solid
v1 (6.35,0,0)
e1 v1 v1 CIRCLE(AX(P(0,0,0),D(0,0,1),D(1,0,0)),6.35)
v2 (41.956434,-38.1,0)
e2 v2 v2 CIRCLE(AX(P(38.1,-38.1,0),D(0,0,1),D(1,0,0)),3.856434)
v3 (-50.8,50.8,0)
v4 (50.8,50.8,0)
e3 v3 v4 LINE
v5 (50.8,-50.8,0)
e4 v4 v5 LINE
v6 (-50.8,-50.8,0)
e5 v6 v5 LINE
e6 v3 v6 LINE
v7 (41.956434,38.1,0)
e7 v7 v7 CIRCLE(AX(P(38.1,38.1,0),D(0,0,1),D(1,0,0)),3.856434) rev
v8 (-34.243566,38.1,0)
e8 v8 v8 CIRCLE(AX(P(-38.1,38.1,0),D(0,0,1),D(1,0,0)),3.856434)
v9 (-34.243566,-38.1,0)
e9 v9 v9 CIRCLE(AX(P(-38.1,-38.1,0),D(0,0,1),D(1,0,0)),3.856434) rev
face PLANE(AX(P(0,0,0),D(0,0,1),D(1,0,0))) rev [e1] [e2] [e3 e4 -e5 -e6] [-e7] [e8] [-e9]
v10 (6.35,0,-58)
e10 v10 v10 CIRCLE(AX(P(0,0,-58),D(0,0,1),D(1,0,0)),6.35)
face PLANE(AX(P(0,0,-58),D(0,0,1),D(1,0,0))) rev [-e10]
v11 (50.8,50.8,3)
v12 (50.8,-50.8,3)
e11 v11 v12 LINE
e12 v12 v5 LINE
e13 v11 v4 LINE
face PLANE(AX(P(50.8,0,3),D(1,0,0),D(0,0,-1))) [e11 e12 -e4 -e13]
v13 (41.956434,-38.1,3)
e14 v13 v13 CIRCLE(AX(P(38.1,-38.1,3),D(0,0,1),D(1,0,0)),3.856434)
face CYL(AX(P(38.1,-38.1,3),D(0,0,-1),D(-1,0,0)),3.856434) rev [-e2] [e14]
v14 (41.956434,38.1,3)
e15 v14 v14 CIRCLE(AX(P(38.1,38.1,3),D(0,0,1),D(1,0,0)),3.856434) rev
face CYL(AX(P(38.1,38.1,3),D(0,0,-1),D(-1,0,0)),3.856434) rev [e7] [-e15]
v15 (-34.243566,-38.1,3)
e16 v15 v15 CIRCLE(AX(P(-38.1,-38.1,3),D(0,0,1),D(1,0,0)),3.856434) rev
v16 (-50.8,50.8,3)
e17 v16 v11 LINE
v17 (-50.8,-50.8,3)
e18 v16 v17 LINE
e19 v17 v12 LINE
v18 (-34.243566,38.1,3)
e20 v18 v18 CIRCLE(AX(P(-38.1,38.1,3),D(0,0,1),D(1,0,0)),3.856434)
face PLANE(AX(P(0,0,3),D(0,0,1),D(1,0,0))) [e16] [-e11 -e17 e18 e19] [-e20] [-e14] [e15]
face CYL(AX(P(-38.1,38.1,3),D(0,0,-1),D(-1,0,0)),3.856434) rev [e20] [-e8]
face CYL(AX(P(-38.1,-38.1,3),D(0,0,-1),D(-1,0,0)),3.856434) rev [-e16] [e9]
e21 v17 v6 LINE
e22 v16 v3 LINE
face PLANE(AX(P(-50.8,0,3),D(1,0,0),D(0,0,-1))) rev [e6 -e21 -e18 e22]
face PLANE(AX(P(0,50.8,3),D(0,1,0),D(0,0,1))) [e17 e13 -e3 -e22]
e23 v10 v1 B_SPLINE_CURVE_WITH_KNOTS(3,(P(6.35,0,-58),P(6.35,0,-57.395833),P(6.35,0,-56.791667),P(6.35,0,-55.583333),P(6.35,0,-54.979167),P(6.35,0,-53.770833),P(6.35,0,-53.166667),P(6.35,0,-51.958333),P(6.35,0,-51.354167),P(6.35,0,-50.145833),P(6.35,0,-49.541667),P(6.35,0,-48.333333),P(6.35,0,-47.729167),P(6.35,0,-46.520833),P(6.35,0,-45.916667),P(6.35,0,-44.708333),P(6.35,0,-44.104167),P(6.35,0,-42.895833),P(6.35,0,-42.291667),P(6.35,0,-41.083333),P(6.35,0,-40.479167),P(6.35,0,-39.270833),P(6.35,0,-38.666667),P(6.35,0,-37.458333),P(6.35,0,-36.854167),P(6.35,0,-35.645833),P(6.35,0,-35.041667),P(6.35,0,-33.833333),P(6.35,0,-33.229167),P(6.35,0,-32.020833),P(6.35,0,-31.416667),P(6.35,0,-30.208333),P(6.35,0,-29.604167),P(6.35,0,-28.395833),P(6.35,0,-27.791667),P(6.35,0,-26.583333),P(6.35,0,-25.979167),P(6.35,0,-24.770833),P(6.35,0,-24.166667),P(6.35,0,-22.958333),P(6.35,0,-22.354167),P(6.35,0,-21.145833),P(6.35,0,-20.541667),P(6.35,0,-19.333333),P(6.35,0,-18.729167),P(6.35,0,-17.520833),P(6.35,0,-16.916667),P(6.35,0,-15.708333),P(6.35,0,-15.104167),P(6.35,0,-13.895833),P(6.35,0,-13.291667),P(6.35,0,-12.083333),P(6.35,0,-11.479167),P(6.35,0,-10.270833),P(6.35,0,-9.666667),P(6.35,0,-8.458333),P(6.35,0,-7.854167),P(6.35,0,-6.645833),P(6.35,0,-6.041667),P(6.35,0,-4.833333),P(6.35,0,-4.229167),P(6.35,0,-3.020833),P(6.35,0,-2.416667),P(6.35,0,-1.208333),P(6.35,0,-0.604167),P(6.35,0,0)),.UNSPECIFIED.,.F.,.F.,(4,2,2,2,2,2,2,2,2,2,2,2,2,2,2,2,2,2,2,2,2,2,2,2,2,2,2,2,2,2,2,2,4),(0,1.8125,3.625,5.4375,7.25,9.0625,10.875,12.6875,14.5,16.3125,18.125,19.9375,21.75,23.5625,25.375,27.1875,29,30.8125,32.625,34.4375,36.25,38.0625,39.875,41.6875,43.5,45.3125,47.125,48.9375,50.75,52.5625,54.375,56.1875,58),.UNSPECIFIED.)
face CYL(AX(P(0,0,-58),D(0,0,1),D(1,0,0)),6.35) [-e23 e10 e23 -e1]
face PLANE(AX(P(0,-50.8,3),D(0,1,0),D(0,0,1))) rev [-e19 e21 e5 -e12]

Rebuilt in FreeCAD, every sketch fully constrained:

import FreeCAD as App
import Part
import Sketcher

V = App.Vector
Q = App.Units.Quantity


def add_polygon(sketch, points):
    """Adds a closed chain of lines whose ends are joined by coincident constraints."""
    first, n = sketch.GeometryCount, len(points)
    for a, b in zip(points, points[1:] + points[:1]):
        sketch.addGeometry(Part.LineSegment(App.Vector(*a, 0), App.Vector(*b, 0)), False)
    for i in range(n):
        sketch.addConstraint(Sketcher.Constraint("Coincident", first + i, 2, first + (i + 1) % n, 1))

doc = App.newDocument("Part")
body = doc.addObject("PartDesign::Body", "Body")

sketch1 = doc.addObject("Sketcher::SketchObject", "Sketch")
body.addObject(sketch1)
sketch1.AttachmentSupport = (doc.XY_Plane, [""])
sketch1.MapMode = "FlatFace"
add_polygon(sketch1, [(-50.8, 50.8), (-50.8, -50.8), (50.8, -50.8), (50.8, 50.8)])
sketch1.addGeometry(Part.Circle(V(-38.1, -38.1, 0), V(0, 0, 1), 3.9), False)
sketch1.addGeometry(Part.Circle(V(38.1, -38.1, 0), V(0, 0, 1), 3.9), False)
sketch1.addGeometry(Part.Circle(V(-38.1, 38.1, 0), V(0, 0, 1), 3.9), False)
sketch1.addGeometry(Part.Circle(V(38.1, 38.1, 0), V(0, 0, 1), 3.9), False)
sketch1.addConstraint([
    Sketcher.Constraint("Vertical", 0),
    Sketcher.Constraint("Horizontal", 1),
    Sketcher.Constraint("Vertical", 2),
    Sketcher.Constraint("Horizontal", 3),
    Sketcher.Constraint("Equal", 4, 5),
    Sketcher.Constraint("Equal", 5, 6),
    Sketcher.Constraint("Equal", 6, 7),
    Sketcher.Constraint("Symmetric", 5, 3, 6, 3, -1, 1),
    Sketcher.Constraint("Symmetric", 4, 3, 7, 3, -1, 1),
    Sketcher.Constraint("Symmetric", 0, 2, 2, 2, -1, 1),
    Sketcher.Constraint("Symmetric", 4, 3, 5, 3, -2),
    Sketcher.Constraint("Equal", 3, 0),
    Sketcher.Constraint("DistanceX", 1, 1, 1, 2, Q("101.6 mm")),
    Sketcher.Constraint("DistanceX", 4, 3, -1, 1, Q("38.1 mm")),
    Sketcher.Constraint("DistanceY", 4, 3, -1, 1, Q("38.1 mm")),
    Sketcher.Constraint("Diameter", 4, Q("7.712868 mm")),
])
pad1 = doc.addObject("PartDesign::Pad", "Pad")
body.addObject(pad1)
pad1.Profile = sketch1
pad1.Length = 3

sketch2 = doc.addObject("Sketcher::SketchObject", "Sketch001")
body.addObject(sketch2)
sketch2.AttachmentSupport = (doc.XY_Plane, [""])
sketch2.MapMode = "FlatFace"
sketch2.addGeometry(Part.Circle(V(0, 0, 0), V(0, 0, 1), 6), False)
sketch2.addConstraint([
    Sketcher.Constraint("Coincident", 0, 3, -1, 1),
    Sketcher.Constraint("Diameter", 0, Q("12.7 mm")),
])
pad2 = doc.addObject("PartDesign::Pad", "Pad001")
body.addObject(pad2)
pad2.Profile = sketch2
pad2.Length = 58
pad2.Reversed = True

doc.recompute()
